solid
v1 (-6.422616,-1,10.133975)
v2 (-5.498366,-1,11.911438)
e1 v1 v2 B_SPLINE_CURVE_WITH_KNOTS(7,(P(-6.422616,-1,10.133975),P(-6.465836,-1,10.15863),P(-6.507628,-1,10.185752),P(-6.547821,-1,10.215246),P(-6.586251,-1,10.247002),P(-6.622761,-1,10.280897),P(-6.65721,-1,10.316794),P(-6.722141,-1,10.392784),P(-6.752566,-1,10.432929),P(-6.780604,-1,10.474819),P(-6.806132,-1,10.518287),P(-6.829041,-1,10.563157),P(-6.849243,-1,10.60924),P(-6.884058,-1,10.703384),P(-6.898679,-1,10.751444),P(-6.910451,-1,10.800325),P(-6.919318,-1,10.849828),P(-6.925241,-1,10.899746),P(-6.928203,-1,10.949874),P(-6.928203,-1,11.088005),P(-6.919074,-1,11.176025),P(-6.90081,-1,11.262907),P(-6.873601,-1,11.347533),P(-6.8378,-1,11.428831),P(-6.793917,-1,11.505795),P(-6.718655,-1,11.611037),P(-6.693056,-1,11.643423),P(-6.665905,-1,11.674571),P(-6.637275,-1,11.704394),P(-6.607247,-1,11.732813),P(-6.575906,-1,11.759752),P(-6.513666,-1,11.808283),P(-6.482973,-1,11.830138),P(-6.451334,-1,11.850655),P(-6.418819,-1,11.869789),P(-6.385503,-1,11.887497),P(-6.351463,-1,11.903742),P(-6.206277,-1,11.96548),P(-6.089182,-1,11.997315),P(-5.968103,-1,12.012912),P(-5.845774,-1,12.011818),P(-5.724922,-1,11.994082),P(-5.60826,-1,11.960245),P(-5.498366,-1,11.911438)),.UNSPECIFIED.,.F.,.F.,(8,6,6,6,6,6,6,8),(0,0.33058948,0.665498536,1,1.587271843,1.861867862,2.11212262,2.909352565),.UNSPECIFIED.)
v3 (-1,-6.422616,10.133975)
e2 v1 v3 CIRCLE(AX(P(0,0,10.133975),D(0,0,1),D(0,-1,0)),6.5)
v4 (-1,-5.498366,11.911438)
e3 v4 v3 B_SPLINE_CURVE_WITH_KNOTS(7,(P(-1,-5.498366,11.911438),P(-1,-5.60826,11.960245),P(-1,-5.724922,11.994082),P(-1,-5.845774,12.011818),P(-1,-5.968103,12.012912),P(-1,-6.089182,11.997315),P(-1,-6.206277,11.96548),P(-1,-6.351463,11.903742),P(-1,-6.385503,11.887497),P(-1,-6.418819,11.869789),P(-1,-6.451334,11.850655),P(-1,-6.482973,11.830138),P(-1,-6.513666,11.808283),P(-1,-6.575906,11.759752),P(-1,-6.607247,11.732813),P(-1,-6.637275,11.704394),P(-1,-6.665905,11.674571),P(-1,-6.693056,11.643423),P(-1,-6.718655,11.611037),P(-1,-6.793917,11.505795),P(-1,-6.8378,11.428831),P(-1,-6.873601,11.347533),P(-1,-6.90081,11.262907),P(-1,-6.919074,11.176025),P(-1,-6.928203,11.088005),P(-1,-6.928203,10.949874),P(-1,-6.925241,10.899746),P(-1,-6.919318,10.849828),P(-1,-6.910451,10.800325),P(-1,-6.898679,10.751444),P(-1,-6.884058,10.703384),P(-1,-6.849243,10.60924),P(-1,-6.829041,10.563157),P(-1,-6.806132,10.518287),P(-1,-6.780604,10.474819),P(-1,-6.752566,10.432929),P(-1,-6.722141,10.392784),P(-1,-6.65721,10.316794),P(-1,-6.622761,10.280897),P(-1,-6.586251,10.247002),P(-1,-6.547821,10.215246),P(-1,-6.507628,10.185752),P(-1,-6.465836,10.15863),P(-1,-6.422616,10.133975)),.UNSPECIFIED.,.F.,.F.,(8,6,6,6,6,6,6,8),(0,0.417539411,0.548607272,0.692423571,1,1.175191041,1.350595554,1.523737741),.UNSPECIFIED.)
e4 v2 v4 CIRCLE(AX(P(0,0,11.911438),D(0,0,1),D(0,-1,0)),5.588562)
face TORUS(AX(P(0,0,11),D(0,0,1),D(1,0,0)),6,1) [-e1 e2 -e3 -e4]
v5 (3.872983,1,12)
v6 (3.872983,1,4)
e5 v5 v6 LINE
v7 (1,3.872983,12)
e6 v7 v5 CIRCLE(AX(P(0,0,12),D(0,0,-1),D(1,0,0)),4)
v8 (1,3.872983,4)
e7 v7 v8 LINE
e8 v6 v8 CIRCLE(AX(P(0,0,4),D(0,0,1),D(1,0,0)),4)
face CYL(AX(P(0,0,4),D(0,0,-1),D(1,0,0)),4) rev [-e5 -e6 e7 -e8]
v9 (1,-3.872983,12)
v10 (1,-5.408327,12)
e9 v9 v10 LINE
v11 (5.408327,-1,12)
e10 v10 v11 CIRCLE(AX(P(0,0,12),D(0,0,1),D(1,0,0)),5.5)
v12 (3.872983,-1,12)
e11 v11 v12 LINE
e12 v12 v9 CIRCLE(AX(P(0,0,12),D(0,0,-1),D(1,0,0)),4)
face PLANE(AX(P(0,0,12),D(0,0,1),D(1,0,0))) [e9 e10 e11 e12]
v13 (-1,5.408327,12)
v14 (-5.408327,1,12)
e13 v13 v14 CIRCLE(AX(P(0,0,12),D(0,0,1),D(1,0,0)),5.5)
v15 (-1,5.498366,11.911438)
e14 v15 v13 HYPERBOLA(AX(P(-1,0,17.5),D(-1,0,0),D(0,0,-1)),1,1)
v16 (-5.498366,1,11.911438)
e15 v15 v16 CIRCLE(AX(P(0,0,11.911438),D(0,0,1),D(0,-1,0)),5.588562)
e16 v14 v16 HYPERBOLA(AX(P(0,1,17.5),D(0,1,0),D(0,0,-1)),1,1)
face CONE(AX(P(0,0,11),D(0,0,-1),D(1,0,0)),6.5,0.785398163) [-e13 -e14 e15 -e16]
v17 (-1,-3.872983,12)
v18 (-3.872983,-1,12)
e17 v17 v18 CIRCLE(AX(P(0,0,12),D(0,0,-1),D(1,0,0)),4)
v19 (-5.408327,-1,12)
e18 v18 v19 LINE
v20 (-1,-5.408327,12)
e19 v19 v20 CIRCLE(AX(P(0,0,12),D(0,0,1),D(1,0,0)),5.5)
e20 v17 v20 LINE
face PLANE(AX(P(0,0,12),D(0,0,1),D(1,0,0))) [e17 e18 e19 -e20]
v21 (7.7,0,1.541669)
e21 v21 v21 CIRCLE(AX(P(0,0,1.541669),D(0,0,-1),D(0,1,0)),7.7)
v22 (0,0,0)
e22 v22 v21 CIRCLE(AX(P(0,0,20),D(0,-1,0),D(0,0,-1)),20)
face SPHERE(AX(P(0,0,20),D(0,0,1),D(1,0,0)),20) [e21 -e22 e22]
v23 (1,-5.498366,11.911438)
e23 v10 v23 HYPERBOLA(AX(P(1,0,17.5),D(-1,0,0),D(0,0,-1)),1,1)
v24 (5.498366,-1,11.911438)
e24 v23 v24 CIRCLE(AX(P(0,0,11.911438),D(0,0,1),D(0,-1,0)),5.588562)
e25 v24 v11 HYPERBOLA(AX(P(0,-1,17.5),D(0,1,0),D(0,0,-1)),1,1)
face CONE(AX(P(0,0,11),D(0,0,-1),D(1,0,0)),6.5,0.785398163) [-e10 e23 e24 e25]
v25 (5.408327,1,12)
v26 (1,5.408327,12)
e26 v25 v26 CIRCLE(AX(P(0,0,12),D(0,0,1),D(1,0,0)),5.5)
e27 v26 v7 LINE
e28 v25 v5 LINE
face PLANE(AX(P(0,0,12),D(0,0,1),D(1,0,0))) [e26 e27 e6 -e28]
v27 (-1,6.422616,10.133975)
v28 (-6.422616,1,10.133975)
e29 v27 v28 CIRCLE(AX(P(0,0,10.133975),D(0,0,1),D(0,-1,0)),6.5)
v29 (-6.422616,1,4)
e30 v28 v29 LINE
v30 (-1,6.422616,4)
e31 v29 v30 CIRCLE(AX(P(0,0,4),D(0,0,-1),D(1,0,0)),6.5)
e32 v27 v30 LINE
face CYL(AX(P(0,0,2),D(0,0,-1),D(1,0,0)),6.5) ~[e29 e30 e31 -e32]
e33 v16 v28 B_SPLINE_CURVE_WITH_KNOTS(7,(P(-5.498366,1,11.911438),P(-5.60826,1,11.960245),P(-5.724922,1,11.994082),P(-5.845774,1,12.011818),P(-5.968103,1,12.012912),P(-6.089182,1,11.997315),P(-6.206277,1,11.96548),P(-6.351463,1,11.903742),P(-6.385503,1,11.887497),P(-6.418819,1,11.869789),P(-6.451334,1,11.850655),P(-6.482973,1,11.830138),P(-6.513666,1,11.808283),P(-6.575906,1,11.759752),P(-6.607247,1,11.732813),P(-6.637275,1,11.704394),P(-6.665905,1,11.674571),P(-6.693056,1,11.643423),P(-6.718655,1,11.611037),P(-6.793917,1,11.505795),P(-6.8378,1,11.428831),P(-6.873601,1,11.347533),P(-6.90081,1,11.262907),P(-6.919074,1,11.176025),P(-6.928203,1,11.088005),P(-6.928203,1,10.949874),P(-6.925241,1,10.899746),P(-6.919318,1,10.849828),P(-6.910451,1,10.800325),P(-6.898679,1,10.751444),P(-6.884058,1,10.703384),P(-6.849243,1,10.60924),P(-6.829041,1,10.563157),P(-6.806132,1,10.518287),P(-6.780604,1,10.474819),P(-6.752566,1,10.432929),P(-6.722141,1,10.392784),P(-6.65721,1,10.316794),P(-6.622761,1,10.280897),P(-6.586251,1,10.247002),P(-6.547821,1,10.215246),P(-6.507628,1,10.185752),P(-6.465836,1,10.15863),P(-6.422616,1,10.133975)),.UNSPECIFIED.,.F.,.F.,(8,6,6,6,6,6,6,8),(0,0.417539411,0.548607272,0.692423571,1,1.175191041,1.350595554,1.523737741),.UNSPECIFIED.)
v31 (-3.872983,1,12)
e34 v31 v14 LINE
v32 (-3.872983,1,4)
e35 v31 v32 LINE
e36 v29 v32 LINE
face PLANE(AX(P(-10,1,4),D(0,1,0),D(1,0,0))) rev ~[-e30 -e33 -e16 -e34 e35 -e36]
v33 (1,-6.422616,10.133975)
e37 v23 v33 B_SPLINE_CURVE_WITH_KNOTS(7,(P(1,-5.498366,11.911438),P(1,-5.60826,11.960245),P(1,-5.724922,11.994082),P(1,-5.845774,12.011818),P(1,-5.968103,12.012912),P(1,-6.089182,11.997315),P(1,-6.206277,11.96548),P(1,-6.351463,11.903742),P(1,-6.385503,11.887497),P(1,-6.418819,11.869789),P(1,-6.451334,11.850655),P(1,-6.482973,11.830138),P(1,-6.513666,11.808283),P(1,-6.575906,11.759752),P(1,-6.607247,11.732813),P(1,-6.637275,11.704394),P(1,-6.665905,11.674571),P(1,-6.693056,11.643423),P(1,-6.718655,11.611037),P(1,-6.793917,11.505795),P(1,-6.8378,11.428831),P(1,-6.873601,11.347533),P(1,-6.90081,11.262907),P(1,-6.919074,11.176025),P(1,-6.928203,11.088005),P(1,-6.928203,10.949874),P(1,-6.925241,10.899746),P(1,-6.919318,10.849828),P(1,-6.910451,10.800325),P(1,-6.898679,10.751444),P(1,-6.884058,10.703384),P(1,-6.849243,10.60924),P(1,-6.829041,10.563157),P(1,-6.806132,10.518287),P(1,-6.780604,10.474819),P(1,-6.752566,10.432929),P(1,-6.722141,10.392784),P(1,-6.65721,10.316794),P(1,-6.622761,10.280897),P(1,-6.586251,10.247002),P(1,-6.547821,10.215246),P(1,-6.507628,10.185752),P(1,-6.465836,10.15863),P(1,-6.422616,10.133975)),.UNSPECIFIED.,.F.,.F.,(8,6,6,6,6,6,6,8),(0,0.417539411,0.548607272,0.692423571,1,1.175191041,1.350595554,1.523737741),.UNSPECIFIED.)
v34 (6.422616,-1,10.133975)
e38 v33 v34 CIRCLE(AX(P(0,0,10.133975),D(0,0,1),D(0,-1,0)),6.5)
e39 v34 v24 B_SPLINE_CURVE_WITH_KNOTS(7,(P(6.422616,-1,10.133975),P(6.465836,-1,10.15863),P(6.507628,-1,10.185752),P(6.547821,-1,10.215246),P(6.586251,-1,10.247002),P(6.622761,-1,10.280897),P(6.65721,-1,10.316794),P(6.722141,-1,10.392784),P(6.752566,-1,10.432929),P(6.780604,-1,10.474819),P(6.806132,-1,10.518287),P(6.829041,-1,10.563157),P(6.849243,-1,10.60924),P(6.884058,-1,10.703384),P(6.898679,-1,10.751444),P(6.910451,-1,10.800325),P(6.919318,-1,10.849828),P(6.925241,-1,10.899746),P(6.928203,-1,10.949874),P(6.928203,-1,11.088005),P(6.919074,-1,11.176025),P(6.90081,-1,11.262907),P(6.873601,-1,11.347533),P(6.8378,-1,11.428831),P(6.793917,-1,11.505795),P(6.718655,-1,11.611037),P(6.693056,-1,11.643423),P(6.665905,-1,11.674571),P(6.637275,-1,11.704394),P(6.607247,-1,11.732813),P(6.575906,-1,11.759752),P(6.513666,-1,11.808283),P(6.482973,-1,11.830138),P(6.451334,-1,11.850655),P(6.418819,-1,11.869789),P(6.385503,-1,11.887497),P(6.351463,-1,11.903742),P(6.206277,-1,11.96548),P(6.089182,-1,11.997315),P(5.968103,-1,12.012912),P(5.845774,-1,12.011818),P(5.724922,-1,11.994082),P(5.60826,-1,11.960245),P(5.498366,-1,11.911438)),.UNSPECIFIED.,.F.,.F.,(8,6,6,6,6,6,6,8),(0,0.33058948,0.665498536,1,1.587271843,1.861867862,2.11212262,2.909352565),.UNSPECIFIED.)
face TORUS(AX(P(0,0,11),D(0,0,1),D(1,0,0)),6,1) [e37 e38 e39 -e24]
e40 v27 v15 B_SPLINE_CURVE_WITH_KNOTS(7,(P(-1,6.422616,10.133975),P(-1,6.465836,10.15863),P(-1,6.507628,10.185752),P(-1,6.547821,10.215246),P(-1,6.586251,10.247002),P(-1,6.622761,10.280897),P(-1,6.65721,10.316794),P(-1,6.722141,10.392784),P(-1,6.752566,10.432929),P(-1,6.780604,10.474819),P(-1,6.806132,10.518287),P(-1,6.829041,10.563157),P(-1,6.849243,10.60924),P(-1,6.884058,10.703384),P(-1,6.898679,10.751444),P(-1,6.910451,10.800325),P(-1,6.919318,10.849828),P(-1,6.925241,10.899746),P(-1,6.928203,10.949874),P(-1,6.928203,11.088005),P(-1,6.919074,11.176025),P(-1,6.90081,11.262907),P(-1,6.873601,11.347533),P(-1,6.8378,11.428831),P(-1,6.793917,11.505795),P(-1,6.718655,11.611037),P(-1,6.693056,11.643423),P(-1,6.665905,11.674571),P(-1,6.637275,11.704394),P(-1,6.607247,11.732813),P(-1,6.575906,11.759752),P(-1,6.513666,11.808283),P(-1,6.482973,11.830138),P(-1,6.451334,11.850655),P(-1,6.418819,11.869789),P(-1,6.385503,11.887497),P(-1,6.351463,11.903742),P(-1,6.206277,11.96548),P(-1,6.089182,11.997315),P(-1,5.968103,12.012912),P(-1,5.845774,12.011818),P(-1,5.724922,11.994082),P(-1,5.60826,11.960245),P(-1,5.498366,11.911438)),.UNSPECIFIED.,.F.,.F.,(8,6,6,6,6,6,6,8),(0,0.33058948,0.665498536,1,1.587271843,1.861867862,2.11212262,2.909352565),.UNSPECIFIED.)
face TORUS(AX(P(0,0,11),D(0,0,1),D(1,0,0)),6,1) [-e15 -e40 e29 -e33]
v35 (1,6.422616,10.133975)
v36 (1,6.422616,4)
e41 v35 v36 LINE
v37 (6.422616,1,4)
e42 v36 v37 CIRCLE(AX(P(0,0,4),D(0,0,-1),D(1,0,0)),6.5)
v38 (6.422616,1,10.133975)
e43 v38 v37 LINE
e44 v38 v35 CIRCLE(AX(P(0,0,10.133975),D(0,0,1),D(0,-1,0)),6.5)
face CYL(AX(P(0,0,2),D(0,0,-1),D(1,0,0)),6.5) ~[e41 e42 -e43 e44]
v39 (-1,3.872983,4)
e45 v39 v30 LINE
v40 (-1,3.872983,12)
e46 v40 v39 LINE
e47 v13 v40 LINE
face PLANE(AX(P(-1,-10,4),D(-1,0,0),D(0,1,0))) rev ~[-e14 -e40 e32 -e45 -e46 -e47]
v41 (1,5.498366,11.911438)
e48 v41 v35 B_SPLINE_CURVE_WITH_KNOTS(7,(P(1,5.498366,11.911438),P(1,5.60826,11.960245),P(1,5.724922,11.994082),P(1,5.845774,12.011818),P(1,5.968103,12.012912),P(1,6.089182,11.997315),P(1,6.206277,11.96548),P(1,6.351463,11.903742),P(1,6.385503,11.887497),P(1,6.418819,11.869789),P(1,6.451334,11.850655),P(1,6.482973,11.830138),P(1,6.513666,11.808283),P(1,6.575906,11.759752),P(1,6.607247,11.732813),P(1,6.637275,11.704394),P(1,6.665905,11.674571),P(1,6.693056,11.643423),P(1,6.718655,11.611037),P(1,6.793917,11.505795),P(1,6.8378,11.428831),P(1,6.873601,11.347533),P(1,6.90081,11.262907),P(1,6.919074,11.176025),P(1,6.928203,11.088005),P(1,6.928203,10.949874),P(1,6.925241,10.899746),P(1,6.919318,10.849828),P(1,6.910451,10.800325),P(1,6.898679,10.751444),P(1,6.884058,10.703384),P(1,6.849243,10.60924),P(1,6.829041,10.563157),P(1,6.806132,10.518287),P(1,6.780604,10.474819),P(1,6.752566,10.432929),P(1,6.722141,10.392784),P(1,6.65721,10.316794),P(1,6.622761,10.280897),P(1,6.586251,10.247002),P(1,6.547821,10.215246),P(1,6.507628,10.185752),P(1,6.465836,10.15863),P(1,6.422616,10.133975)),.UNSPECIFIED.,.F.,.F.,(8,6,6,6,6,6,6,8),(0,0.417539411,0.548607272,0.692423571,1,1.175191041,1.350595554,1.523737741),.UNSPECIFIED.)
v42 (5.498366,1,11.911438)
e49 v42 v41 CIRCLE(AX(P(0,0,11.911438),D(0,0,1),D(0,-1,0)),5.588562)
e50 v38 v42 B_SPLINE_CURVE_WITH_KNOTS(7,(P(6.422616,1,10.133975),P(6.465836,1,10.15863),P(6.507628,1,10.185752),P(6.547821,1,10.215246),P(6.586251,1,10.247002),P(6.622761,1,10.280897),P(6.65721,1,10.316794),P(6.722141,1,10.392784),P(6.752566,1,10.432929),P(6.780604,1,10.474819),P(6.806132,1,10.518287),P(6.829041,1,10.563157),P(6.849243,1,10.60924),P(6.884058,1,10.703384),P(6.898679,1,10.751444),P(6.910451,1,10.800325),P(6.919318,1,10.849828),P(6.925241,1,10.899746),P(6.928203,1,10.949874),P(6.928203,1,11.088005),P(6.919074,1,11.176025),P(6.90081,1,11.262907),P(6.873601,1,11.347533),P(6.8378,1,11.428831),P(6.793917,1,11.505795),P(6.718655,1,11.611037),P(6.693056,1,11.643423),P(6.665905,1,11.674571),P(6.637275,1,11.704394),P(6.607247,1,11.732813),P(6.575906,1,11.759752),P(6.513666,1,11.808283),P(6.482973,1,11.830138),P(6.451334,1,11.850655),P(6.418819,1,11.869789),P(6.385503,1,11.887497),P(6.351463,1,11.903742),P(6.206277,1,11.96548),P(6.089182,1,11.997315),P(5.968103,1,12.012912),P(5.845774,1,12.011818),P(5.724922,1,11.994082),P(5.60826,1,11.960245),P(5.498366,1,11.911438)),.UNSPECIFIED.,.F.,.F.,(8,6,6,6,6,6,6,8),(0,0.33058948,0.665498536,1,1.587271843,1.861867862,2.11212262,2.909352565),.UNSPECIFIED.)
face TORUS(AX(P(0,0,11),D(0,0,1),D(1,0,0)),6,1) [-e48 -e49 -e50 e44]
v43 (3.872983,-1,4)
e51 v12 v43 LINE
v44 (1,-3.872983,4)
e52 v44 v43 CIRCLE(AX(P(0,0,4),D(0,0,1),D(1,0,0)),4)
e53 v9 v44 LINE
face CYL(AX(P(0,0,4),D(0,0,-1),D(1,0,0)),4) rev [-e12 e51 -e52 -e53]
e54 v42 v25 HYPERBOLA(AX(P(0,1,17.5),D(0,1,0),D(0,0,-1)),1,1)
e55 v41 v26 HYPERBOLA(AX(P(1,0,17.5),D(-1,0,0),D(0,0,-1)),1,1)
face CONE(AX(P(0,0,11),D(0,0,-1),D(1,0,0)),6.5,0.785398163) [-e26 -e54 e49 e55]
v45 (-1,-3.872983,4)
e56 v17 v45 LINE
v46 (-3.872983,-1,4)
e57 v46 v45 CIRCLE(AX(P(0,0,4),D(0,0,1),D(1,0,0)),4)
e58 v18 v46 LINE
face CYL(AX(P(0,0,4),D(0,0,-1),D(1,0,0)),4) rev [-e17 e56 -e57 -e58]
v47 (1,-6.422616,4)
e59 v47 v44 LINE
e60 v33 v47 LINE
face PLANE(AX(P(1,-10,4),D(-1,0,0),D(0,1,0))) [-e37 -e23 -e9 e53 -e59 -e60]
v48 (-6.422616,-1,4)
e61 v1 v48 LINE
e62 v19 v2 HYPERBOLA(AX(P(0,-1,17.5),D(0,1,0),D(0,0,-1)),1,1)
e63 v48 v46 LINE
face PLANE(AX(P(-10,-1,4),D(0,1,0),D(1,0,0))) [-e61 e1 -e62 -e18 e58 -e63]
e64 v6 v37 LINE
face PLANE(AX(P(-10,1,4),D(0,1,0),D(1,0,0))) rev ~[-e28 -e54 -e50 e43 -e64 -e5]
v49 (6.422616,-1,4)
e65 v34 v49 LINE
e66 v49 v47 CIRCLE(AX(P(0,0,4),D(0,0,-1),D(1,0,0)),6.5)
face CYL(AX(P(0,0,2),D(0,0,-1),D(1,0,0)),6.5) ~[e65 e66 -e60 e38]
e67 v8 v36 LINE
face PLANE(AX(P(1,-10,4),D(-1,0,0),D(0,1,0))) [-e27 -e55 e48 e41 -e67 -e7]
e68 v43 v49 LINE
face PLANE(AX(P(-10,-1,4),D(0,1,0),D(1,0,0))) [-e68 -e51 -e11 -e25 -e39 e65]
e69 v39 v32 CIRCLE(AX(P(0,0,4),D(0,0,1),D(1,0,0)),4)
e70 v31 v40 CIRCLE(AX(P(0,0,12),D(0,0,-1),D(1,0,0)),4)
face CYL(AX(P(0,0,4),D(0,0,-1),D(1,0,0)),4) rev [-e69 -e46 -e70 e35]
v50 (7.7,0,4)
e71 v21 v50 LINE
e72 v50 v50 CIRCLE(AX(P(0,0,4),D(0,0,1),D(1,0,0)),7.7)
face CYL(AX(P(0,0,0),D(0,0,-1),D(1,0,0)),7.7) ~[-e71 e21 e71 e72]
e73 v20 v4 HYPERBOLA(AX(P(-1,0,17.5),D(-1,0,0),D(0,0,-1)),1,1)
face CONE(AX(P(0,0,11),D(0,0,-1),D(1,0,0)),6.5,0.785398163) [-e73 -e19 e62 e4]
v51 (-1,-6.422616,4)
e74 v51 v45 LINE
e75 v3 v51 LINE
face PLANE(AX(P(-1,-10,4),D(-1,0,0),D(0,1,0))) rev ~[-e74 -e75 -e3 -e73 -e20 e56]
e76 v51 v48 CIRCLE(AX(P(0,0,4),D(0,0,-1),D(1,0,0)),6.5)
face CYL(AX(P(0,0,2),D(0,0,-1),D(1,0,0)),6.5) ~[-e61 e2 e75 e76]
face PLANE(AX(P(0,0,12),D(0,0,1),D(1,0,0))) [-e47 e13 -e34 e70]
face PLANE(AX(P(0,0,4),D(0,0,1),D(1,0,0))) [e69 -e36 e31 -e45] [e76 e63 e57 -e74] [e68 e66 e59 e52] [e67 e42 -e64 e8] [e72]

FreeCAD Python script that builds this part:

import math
import FreeCAD as App
import Part
import Sketcher


def edges_at(feature, points):
    """Names of the edges that pass closest to the given points."""
    edges = feature.Shape.Edges
    near = lambda p: min(range(len(edges)), key=lambda i: edges[i].distToShape(Part.Vertex(*p))[0])
    return sorted({f"Edge{near(p) + 1}" for p in points})


def add_polygon(sketch, points):
    """Adds a closed chain of lines whose ends are joined by coincident constraints."""
    first, n = sketch.GeometryCount, len(points)
    for a, b in zip(points, points[1:] + points[:1]):
        sketch.addGeometry(Part.LineSegment(App.Vector(*a, 0), App.Vector(*b, 0)), False)
    for i in range(n):
        sketch.addConstraint(Sketcher.Constraint("Coincident", first + i, 2, first + (i + 1) % n, 1))

doc = App.newDocument("Part")
body = doc.addObject("PartDesign::Body", "Body")

# Sketch on XY plane
sketch1 = doc.addObject("Sketcher::SketchObject", "Sketch")
body.addObject(sketch1)
sketch1.AttachmentSupport = (doc.XY_Plane, [""])
sketch1.MapMode = "FlatFace"
sketch1.AttachmentOffset = App.Placement(App.Vector(0, 0, 4), App.Rotation())
add_polygon(sketch1, [(-10, 1), (-10, -1), (10, -1), (10, 1)])  # lines 0-3
sketch1.addConstraint([
    Sketcher.Constraint("Vertical", 0),
    Sketcher.Constraint("Horizontal", 1),
    Sketcher.Constraint("Vertical", 2),
    Sketcher.Constraint("Horizontal", 3),
    Sketcher.Constraint("Symmetric", 0, 2, 2, 2, -1, 1),
    Sketcher.Constraint("DistanceX", 1, 1, 1, 2, 20.0),
    Sketcher.Constraint("DistanceY", 0, 2, 0, 1, 2.0),
])
pad1 = doc.addObject("PartDesign::Pad", "Pad")
body.addObject(pad1)
pad1.Profile = sketch1
pad1.Length = 10
body2 = doc.addObject("PartDesign::Body", "Body001")

# Sketch on XY plane
sketch2 = doc.addObject("Sketcher::SketchObject", "Sketch001")
body2.addObject(sketch2)
sketch2.AttachmentSupport = (doc.getObject("XY_Plane001"), [""])
sketch2.MapMode = "FlatFace"
sketch2.AttachmentOffset = App.Placement(App.Vector(0, 0, 4), App.Rotation())
add_polygon(sketch2, [(-1, 10), (-1, -10), (1, -10), (1, 10)])  # lines 0-3
sketch2.addConstraint([
    Sketcher.Constraint("Vertical", 0),
    Sketcher.Constraint("Horizontal", 1),
    Sketcher.Constraint("Vertical", 2),
    Sketcher.Constraint("Horizontal", 3),
    Sketcher.Constraint("Symmetric", 0, 2, 2, 2, -1, 1),
    Sketcher.Constraint("DistanceX", 1, 1, 1, 2, 2.0),
    Sketcher.Constraint("DistanceY", 0, 2, 0, 1, 20.0),
])
pad2 = doc.addObject("PartDesign::Pad", "Pad001")
body2.addObject(pad2)
pad2.Profile = sketch2
pad2.Length = 10
body3 = doc.addObject("PartDesign::Body", "Body002")

# Sketch on XY plane
sketch3 = doc.addObject("Sketcher::SketchObject", "Sketch002")
body3.addObject(sketch3)
sketch3.AttachmentSupport = (doc.getObject("XY_Plane002"), [""])
sketch3.MapMode = "FlatFace"
sketch3.AttachmentOffset = App.Placement(App.Vector(0, 0, 4), App.Rotation())
sketch3.addGeometry(Part.Circle(App.Vector(0, 0, 0), App.Vector(0, 0, 1), 4), False)
sketch3.addConstraint([
    Sketcher.Constraint("Coincident", 0, 3, -1, 1),
    Sketcher.Constraint("Diameter", 0, 8.0),
])
pad3 = doc.addObject("PartDesign::Pad", "Pad002")
body3.addObject(pad3)
pad3.Profile = sketch3
pad3.Length = 10
doc.recompute()

boolean = doc.addObject("PartDesign::Boolean", "Boolean")
body3.addObject(boolean)
boolean.Type = "Fuse"
boolean.addObjects([body])
doc.recompute()

boolean2 = doc.addObject("PartDesign::Boolean", "Boolean001")
body3.addObject(boolean2)
boolean2.Type = "Fuse"
boolean2.addObjects([body2])
body4 = doc.addObject("PartDesign::Body", "Body003")

# Sketch on XZ plane
sketch4 = doc.addObject("Sketcher::SketchObject", "Sketch003")
body4.addObject(sketch4)
sketch4.AttachmentSupport = (doc.getObject("XZ_Plane003"), [""])
sketch4.MapMode = "FlatFace"
sketch4.addGeometry(Part.Circle(App.Vector(6, 11, 0), App.Vector(0, 0, 1), 1), False)
sketch4.addConstraint([
    Sketcher.Constraint("Diameter", 0, 2.0),
    Sketcher.Constraint("DistanceX", -1, 1, 0, 3, 6.0),
    Sketcher.Constraint("DistanceY", -1, 1, 0, 3, 11.0),
])
revolution = doc.addObject("PartDesign::Revolution", "Revolution")
body4.addObject(revolution)
revolution.Profile = sketch4
revolution.ReferenceAxis = (sketch4, ["V_Axis"])
revolution.Angle = 360
body5 = doc.addObject("PartDesign::Body", "Body004")

# Sketch on XY plane
sketch5 = doc.addObject("Sketcher::SketchObject", "Sketch004")
body5.addObject(sketch5)
sketch5.AttachmentSupport = (doc.getObject("XY_Plane004"), [""])
sketch5.MapMode = "FlatFace"
sketch5.AttachmentOffset = App.Placement(App.Vector(0, 0, 2), App.Rotation())
sketch5.addGeometry(Part.Circle(App.Vector(0, 0, 0), App.Vector(0, 0, 1), 6), False)
sketch5.addConstraint([
    Sketcher.Constraint("Coincident", 0, 3, -1, 1),
    Sketcher.Constraint("Diameter", 0, 13.0),
])
pad4 = doc.addObject("PartDesign::Pad", "Pad003")
body5.addObject(pad4)
pad4.Profile = sketch5
pad4.Length = 10
body6 = doc.addObject("PartDesign::Body", "Body005")

# Sketch on XY plane
sketch6 = doc.addObject("Sketcher::SketchObject", "Sketch005")
body6.addObject(sketch6)
sketch6.AttachmentSupport = (doc.getObject("XY_Plane005"), [""])
sketch6.MapMode = "FlatFace"
sketch6.addGeometry(Part.Circle(App.Vector(0, 0, 0), App.Vector(0, 0, 1), 8), False)
sketch6.addConstraint([
    Sketcher.Constraint("Coincident", 0, 3, -1, 1),
    Sketcher.Constraint("Diameter", 0, 15.4),
])
pad5 = doc.addObject("PartDesign::Pad", "Pad004")
body6.addObject(pad5)
pad5.Profile = sketch6
pad5.Length = 4
body7 = doc.addObject("PartDesign::Body", "Body006")

# Sketch on XZ plane
sketch7 = doc.addObject("Sketcher::SketchObject", "Sketch006")
body7.addObject(sketch7)
sketch7.AttachmentSupport = (doc.getObject("XZ_Plane006"), [""])
sketch7.MapMode = "FlatFace"
sketch7.addGeometry([
    Part.ArcOfCircle(Part.Circle(App.Vector(0, 20, 0), App.Vector(0, 0, 1), 20), math.radians(-90), math.radians(90)),
    Part.LineSegment(App.Vector(0, 40, 0), App.Vector(0, 0, 0)),
], False)
sketch7.addConstraint([
    Sketcher.Constraint("Coincident", 0, 1, 1, 2),
    Sketcher.Constraint("Coincident", 1, 1, 0, 2),
    Sketcher.Constraint("Vertical", 1),
    Sketcher.Constraint("Coincident", 0, 1, -1, 1),
    Sketcher.Constraint("PointOnObject", 0, 3, -2),
    Sketcher.Constraint("Radius", 0, 20.0),
])
revolution2 = doc.addObject("PartDesign::Revolution", "Revolution001")
body7.addObject(revolution2)
revolution2.Profile = sketch7
revolution2.ReferenceAxis = (sketch7, ["V_Axis"])
revolution2.Angle = 360
doc.recompute()

boolean3 = doc.addObject("PartDesign::Boolean", "Boolean002")
body7.addObject(boolean3)
boolean3.Type = "Common"
boolean3.addObjects([body6])
doc.recompute()

boolean4 = doc.addObject("PartDesign::Boolean", "Boolean003")
body7.addObject(boolean4)
boolean4.Type = "Fuse"
boolean4.addObjects([body5])
doc.recompute()

chamfer = doc.addObject("PartDesign::Chamfer", "Chamfer")
body7.addObject(chamfer)
chamfer.Base = (boolean4, edges_at(boolean4, [(-6.5, 0, 12)]))
chamfer.Size = 1
doc.recompute()

boolean5 = doc.addObject("PartDesign::Boolean", "Boolean004")
body7.addObject(boolean5)
boolean5.Type = "Fuse"
boolean5.addObjects([body4])
doc.recompute()

boolean6 = doc.addObject("PartDesign::Boolean", "Boolean005")
body7.addObject(boolean6)
boolean6.Type = "Cut"
boolean6.addObjects([body3])

doc.recompute()
